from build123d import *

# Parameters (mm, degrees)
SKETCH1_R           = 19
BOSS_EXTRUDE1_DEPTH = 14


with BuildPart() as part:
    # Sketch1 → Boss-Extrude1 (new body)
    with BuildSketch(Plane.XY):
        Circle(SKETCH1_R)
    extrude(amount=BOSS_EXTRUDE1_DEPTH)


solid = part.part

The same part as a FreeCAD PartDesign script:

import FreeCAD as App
import Part
import Sketcher

V = App.Vector
Q = App.Units.Quantity

doc = App.newDocument("Part")
body = doc.addObject("PartDesign::Body", "Body")

# Sketch on XY plane
sketch1 = body.newObject("Sketcher::SketchObject", "Sketch")
sketch1.AttachmentSupport = (doc.getObject("XY_Plane"), [""])
sketch1.MapMode = "FlatFace"
sketch1.addGeometry(Part.Circle(V(0, 0, 0), V(0, 0, 1), 19), False)
sketch1.addConstraint(Sketcher.Constraint("Coincident", 0, 3, -1, 1))
sketch1.addConstraint(Sketcher.Constraint("Diameter", 0, Q("38 mm")))
pad1 = body.newObject("PartDesign::Pad", "Pad")
pad1.Profile = sketch1
pad1.Length = 14

doc.recompute()
